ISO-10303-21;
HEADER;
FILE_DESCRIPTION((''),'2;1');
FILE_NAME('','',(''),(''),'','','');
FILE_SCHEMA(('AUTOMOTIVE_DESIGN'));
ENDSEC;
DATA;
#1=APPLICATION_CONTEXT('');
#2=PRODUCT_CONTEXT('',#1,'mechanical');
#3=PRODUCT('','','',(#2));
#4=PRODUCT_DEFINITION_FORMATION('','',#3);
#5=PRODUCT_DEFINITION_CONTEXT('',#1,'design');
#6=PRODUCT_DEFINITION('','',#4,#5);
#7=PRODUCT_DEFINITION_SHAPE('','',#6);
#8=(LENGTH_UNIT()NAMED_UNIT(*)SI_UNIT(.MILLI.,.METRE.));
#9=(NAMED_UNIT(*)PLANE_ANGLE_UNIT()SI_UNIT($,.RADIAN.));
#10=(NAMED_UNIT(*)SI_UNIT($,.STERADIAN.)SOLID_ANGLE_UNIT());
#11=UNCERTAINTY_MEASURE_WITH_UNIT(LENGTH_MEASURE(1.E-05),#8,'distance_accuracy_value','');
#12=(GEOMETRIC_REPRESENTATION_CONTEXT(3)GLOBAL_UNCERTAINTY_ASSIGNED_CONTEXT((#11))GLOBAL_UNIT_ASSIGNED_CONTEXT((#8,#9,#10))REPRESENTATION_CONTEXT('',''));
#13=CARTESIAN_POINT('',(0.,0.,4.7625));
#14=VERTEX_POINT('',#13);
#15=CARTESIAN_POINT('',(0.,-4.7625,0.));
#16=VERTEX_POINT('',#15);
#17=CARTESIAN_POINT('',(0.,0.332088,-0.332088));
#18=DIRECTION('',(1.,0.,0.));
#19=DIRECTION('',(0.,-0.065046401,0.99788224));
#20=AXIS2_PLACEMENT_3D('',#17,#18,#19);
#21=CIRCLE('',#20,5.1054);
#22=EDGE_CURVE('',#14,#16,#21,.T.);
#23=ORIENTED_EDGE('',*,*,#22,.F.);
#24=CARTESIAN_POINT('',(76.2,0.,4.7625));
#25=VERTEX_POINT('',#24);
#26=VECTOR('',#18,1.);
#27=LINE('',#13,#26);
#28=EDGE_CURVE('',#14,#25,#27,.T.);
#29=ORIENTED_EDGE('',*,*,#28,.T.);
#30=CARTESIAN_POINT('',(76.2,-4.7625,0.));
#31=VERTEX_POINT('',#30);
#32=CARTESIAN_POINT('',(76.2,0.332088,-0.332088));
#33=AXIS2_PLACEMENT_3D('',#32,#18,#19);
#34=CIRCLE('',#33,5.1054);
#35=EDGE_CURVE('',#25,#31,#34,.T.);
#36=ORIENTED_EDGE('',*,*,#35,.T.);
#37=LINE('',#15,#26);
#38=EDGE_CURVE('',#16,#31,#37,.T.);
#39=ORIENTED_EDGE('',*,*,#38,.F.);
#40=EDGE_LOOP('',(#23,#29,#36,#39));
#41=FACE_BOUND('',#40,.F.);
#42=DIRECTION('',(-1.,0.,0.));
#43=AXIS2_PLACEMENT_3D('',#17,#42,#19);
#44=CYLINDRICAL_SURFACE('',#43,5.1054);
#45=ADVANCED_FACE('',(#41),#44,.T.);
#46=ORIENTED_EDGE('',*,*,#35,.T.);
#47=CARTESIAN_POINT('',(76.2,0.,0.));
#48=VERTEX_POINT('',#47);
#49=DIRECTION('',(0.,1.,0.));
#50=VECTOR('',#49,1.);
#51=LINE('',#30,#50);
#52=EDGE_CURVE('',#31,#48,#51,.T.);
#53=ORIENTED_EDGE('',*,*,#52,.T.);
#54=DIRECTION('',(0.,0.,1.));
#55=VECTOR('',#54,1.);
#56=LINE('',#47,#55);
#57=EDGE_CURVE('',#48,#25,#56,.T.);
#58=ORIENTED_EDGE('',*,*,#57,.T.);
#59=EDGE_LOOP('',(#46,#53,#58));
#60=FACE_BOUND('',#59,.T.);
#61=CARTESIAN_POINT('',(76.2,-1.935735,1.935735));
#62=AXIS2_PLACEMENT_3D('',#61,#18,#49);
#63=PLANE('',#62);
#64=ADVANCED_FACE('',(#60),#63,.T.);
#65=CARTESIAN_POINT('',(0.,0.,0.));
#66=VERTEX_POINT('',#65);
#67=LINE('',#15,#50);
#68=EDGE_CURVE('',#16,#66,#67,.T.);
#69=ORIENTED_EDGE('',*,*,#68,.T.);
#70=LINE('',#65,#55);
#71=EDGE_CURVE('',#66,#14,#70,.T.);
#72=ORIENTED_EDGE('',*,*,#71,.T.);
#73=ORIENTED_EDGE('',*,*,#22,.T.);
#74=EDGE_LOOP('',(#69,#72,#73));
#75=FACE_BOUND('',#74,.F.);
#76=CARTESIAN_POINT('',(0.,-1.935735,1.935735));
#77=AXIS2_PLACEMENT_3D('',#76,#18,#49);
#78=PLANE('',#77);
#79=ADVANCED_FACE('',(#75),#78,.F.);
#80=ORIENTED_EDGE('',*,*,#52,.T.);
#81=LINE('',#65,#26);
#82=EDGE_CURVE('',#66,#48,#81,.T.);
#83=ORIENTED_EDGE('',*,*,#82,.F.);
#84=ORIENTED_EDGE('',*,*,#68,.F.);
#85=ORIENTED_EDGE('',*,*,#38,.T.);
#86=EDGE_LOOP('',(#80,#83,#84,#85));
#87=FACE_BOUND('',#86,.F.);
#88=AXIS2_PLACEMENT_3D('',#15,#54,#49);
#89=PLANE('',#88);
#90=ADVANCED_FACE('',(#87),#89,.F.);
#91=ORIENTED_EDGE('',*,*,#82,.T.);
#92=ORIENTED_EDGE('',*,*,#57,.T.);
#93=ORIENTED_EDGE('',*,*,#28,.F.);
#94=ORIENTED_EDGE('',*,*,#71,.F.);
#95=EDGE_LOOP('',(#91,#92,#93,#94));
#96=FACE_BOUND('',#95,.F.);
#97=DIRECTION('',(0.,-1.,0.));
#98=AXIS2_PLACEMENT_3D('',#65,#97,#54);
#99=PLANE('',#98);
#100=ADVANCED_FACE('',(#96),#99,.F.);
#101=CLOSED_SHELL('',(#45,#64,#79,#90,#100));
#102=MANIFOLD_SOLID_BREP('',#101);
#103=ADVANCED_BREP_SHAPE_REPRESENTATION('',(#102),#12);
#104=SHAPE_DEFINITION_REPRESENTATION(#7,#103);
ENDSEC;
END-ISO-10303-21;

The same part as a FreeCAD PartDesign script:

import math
import FreeCAD as App
import Part
import Sketcher
from FreeCAD import Vector
Q = App.Units.Quantity

doc = App.newDocument("Part")
body = doc.addObject("PartDesign::Body", "Body")

# Sketch on YZ plane
sketch1 = body.newObject("Sketcher::SketchObject", "Sketch")
sketch1.AttachmentSupport = (doc.getObject("YZ_Plane"), [""])
sketch1.MapMode = "FlatFace"
sketch1.addGeometry([
    Part.LineSegment(Vector(-4.7625, 0, 0), Vector(0, 0, 0)),
    Part.LineSegment(Vector(0, 0, 0), Vector(0, 4.7625, 0)),
    Part.ArcOfCircle(Part.Circle(Vector(0.332088, -0.332088, 0), Vector(0, 0, 1), 5.1054), math.radians(93.729517), math.radians(176.270483)),
], False)
sketch1.addConstraint([
    Sketcher.Constraint("Coincident", 0, 2, 1, 1),
    Sketcher.Constraint("Coincident", 1, 2, 2, 1),
    Sketcher.Constraint("Coincident", 2, 2, 0, 1),
    Sketcher.Constraint("Horizontal", 0),
    Sketcher.Constraint("Vertical", 1),
    Sketcher.Constraint("Coincident", 0, 2, -1, 1),
    Sketcher.Constraint("Equal", 0, 1),
    Sketcher.Constraint("Radius", 2, Q("0.201 in")),
    Sketcher.Constraint("DistanceX", 0, 1, 0, 2, Q("0.1875 in")),
])
pad1 = body.newObject("PartDesign::Pad", "Pad")
pad1.Profile = sketch1
pad1.Length = Q("3 in")

doc.recompute()
